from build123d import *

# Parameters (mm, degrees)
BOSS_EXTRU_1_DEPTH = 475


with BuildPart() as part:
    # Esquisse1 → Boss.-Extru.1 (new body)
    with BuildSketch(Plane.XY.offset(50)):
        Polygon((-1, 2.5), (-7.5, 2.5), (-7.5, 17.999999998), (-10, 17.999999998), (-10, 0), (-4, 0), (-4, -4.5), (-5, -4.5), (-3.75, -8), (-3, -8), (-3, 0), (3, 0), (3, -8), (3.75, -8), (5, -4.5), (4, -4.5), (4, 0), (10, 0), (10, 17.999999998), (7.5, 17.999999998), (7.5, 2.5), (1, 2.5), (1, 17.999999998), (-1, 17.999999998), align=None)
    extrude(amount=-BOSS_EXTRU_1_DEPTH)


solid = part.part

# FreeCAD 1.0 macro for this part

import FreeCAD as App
import Part
import Sketcher

V = App.Vector
Q = App.Units.Quantity


def add_polygon(sketch, points):
    """Adds a closed chain of lines whose ends are joined by coincident constraints."""
    first, n = sketch.GeometryCount, len(points)
    for a, b in zip(points, points[1:] + points[:1]):
        sketch.addGeometry(Part.LineSegment(App.Vector(*a, 0), App.Vector(*b, 0)), False)
    for i in range(n):
        sketch.addConstraint(Sketcher.Constraint("Coincident", first + i, 2, first + (i + 1) % n, 1))

doc = App.newDocument("Part")
body = doc.addObject("PartDesign::Body", "Body")

# Sketch on XY plane
sketch1 = body.newObject("Sketcher::SketchObject", "Sketch")
sketch1.AttachmentSupport = (doc.getObject("XY_Plane"), [""])
sketch1.MapMode = "FlatFace"
sketch1.AttachmentOffset = App.Placement(V(0, 0, 50), App.Rotation())
add_polygon(sketch1, [(-1, 2.5), (-7.5, 2.5), (-7.5, 18), (-10, 18), (-10, 0), (-4, 0), (-4, -4.5), (-5, -4.5), (-3.8, -8), (-3, -8), (-3, 0), (3, 0), (3, -8), (3.8, -8), (5, -4.5), (4, -4.5), (4, 0), (10, 0), (10, 18), (7.5, 18), (7.5, 2.5), (1, 2.5), (1, 18), (-1, 18)])  # lines 0-23
sketch1.addConstraint([
    Sketcher.Constraint("Horizontal", 0),
    Sketcher.Constraint("Vertical", 1),
    Sketcher.Constraint("Horizontal", 2),
    Sketcher.Constraint("Vertical", 3),
    Sketcher.Constraint("Horizontal", 4),
    Sketcher.Constraint("Vertical", 5),
    Sketcher.Constraint("Horizontal", 6),
    Sketcher.Constraint("Horizontal", 8),
    Sketcher.Constraint("Vertical", 9),
    Sketcher.Constraint("Horizontal", 10),
    Sketcher.Constraint("Vertical", 11),
    Sketcher.Constraint("Horizontal", 12),
    Sketcher.Constraint("Horizontal", 14),
    Sketcher.Constraint("Vertical", 15),
    Sketcher.Constraint("Horizontal", 16),
    Sketcher.Constraint("Vertical", 17),
    Sketcher.Constraint("Horizontal", 18),
    Sketcher.Constraint("Vertical", 19),
    Sketcher.Constraint("Horizontal", 20),
    Sketcher.Constraint("Vertical", 21),
    Sketcher.Constraint("Horizontal", 22),
    Sketcher.Constraint("Vertical", 23),
    Sketcher.Constraint("Symmetric", 9, 2, 10, 2, -1, 1),
    Sketcher.Constraint("Symmetric", 4, 2, 15, 2, -1, 1),
    Sketcher.Constraint("Symmetric", 7, 2, 12, 2, -2),
    Sketcher.Constraint("Symmetric", 6, 2, 13, 2, -2),
    Sketcher.Constraint("Symmetric", 3, 2, 16, 2, -2),
    Sketcher.Constraint("Symmetric", 1, 2, 18, 2, -2),
    Sketcher.Constraint("Symmetric", 20, 2, 23, 2, -2),
    Sketcher.Constraint("Horizontal", 18, 2, 21, 2),
    Sketcher.Constraint("Equal", 4, 10),
    Sketcher.Constraint("DistanceX", 4, 1, 4, 2, Q("6 mm")),
    Sketcher.Constraint("DistanceX", 6, 2, 6, 1, Q("1 mm")),
    Sketcher.Constraint("DistanceX", 22, 2, 22, 1, Q("2 mm")),
    Sketcher.Constraint("DistanceY", 3, 2, 3, 1, Q("18 mm")),
    Sketcher.Constraint("DistanceY", 9, 1, 9, 2, Q("8 mm")),
    Sketcher.Constraint("DistanceX", 0, 2, 0, 1, Q("6.5 mm")),
    Sketcher.Constraint("DistanceX", 2, 2, 2, 1, Q("2.5 mm")),
    Sketcher.Constraint("DistanceY", 1, 1, 1, 2, Q("15.5 mm")),
    Sketcher.Constraint("DistanceY", 5, 2, 5, 1, Q("4.5 mm")),
    Sketcher.Constraint("DistanceX", 8, 1, 8, 2, Q("0.75 mm")),
])
pad1 = body.newObject("PartDesign::Pad", "Pad")
pad1.Profile = sketch1
pad1.Length = 475
pad1.Reversed = True

doc.recompute()
